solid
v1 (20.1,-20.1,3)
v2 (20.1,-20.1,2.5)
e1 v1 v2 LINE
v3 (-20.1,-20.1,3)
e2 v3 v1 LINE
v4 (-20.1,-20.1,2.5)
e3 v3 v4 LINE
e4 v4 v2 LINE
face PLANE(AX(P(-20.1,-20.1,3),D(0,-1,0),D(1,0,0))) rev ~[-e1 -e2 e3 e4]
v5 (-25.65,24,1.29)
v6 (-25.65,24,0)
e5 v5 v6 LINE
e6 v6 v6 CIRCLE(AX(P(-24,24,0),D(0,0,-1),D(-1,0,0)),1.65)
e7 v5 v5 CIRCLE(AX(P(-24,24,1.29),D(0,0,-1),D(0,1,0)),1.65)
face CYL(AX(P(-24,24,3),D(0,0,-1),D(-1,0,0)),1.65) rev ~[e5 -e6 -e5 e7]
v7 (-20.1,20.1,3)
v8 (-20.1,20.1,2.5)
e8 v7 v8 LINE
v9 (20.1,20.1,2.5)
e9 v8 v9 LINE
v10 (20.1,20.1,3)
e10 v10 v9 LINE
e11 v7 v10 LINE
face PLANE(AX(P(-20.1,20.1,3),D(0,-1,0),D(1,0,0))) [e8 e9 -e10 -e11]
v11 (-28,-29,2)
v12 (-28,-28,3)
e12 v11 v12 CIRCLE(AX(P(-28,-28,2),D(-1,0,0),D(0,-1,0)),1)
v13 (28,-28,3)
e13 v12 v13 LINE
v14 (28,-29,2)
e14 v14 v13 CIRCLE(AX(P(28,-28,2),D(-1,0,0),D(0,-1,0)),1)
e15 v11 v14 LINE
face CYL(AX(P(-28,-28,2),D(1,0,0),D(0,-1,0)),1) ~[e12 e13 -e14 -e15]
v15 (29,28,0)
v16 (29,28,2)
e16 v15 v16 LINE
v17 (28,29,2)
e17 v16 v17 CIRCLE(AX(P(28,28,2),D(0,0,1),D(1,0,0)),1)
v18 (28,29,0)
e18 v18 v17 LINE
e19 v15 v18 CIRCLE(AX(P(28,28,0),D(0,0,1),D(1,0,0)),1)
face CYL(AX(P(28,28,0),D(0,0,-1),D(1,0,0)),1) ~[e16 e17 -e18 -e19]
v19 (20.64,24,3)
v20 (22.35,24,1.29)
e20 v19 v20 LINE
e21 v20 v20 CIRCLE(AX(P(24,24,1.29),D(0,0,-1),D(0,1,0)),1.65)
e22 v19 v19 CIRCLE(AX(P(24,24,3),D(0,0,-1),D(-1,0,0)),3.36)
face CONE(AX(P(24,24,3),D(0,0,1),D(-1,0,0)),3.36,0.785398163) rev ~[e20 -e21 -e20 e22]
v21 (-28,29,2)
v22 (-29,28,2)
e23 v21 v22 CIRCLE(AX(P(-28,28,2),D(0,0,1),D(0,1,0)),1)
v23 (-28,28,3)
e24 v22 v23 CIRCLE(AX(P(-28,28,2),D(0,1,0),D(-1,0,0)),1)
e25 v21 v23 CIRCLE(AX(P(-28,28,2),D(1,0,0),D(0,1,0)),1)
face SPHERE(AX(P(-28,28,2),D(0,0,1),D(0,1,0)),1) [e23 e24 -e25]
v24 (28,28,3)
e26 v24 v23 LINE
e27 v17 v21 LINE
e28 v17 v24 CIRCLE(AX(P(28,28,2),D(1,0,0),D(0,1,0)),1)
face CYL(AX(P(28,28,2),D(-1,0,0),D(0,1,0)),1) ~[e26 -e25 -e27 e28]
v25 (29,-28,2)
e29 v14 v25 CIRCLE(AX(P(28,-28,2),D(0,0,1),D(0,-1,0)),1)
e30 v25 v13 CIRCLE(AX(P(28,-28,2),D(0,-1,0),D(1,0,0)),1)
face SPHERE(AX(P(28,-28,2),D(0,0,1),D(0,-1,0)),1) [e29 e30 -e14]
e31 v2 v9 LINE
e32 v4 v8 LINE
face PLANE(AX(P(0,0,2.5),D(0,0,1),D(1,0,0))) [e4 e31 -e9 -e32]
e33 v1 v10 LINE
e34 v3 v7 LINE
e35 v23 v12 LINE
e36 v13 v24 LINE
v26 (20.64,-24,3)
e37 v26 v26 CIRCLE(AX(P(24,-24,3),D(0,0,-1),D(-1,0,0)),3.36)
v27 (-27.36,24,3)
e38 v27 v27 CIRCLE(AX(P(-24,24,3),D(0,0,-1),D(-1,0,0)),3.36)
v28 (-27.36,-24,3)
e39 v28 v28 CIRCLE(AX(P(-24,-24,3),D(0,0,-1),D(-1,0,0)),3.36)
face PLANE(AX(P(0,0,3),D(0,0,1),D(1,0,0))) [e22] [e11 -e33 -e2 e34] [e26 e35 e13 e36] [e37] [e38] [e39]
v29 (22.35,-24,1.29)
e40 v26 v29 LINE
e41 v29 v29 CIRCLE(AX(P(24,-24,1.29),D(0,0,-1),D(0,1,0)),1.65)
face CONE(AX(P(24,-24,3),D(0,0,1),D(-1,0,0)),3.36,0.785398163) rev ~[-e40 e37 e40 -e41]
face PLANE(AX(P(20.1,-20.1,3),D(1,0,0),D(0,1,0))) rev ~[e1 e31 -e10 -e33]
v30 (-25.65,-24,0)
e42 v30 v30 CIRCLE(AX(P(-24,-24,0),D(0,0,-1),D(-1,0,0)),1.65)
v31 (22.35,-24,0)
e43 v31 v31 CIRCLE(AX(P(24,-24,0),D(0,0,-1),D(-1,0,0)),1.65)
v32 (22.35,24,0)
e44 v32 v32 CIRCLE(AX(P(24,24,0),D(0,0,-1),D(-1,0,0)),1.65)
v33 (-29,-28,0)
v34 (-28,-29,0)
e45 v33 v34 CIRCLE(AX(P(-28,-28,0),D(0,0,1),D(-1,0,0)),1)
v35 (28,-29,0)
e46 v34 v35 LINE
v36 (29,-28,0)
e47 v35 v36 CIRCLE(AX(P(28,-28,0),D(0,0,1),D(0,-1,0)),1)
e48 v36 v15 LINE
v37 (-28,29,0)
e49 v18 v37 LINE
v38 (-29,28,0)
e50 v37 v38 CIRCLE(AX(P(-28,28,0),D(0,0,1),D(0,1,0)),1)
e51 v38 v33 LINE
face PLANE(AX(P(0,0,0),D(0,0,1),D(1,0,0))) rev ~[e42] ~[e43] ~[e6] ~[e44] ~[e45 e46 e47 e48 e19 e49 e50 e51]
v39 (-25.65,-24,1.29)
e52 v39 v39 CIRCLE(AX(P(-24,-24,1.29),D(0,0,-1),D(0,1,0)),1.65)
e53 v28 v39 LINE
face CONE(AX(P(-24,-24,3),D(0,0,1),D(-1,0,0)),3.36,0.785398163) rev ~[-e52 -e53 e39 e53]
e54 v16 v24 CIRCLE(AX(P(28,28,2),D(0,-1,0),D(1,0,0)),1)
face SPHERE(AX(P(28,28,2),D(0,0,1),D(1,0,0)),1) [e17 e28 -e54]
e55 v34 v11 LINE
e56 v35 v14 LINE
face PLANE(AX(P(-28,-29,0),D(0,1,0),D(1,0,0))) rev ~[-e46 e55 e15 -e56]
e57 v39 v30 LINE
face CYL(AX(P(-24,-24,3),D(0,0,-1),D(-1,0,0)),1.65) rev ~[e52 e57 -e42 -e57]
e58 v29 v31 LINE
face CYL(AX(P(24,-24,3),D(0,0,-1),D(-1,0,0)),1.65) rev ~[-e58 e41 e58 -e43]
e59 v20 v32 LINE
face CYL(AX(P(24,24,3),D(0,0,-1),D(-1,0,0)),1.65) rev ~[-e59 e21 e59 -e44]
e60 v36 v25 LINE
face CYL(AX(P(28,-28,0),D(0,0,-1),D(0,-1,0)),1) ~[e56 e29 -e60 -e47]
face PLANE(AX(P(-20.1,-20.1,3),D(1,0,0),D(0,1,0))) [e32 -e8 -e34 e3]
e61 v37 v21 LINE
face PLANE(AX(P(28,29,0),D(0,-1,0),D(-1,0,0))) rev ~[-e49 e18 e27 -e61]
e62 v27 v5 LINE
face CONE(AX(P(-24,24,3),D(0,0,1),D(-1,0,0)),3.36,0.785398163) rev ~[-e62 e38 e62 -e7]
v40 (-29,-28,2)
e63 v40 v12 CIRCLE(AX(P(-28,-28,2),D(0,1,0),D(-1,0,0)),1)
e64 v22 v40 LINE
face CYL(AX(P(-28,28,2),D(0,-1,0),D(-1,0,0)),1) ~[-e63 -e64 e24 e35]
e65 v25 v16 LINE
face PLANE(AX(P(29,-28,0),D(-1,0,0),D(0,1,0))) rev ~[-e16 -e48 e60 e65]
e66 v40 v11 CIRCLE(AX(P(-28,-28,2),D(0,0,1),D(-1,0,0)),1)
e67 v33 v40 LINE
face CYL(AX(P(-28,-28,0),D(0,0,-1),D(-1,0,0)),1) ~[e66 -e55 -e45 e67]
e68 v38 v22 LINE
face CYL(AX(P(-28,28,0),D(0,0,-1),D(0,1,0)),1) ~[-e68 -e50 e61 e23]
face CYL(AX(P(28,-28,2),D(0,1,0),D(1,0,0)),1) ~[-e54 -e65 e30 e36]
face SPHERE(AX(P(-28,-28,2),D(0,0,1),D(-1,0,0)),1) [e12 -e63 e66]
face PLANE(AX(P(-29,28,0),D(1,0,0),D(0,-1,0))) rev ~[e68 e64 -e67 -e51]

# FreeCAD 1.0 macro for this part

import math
import FreeCAD as App
import Part
import Sketcher
from FreeCAD import Vector
Q = App.Units.Quantity


def edges_at(feature, points):
    """Names of the edges that pass closest to the given points."""
    edges = feature.Shape.Edges
    near = lambda p: min(range(len(edges)), key=lambda i: edges[i].distToShape(Part.Vertex(*p))[0])
    return sorted({f"Edge{near(p) + 1}" for p in points})

doc = App.newDocument("Part")
body = doc.addObject("PartDesign::Body", "Body")

sketch1 = doc.addObject("Sketcher::SketchObject", "Sketch")
body.addObject(sketch1)
sketch1.AttachmentSupport = (doc.XY_Plane, [""])
sketch1.MapMode = "FlatFace"
sketch1.addGeometry([
    Part.LineSegment(Vector(-28, -29, 0), Vector(28, -29, 0)),
    Part.ArcOfCircle(Part.Circle(Vector(28, -28, 0), Vector(0, 0, 1), 1), math.radians(-90), math.radians(0)),
    Part.LineSegment(Vector(29, -28, 0), Vector(29, 28, 0)),
    Part.ArcOfCircle(Part.Circle(Vector(28, 28, 0), Vector(0, 0, 1), 1), math.radians(0), math.radians(90)),
    Part.LineSegment(Vector(28, 29, 0), Vector(-28, 29, 0)),
    Part.ArcOfCircle(Part.Circle(Vector(-28, 28, 0), Vector(0, 0, 1), 1), math.radians(90), math.radians(180)),
    Part.LineSegment(Vector(-29, 28, 0), Vector(-29, -28, 0)),
    Part.ArcOfCircle(Part.Circle(Vector(-28, -28, 0), Vector(0, 0, 1), 1), math.radians(180), math.radians(270)),
], False)
sketch1.addConstraint([
    Sketcher.Constraint("Tangent", 0, 2, 1, 1),
    Sketcher.Constraint("Tangent", 1, 2, 2, 1),
    Sketcher.Constraint("Tangent", 2, 2, 3, 1),
    Sketcher.Constraint("Tangent", 3, 2, 4, 1),
    Sketcher.Constraint("Tangent", 4, 2, 5, 1),
    Sketcher.Constraint("Tangent", 5, 2, 6, 1),
    Sketcher.Constraint("Tangent", 6, 2, 7, 1),
    Sketcher.Constraint("Tangent", 7, 2, 0, 1),
    Sketcher.Constraint("Horizontal", 0),
    Sketcher.Constraint("Vertical", 2),
    Sketcher.Constraint("Horizontal", 4),
    Sketcher.Constraint("Vertical", 6),
    Sketcher.Constraint("Equal", 1, 3),
    Sketcher.Constraint("Equal", 3, 5),
    Sketcher.Constraint("Equal", 5, 7),
    Sketcher.Constraint("Symmetric", 1, 3, 5, 3, -1, 1),
    Sketcher.Constraint("Equal", 4, 2),
    Sketcher.Constraint("Radius", 1, Q("1 mm")),
    Sketcher.Constraint("DistanceX", 0, 1, 0, 2, Q("56 mm")),
])
pad1 = doc.addObject("PartDesign::Pad", "Pad")
body.addObject(pad1)
pad1.Profile = sketch1
pad1.Length = 3
doc.recompute()

fillet = doc.addObject("PartDesign::Fillet", "Fillet")
body.addObject(fillet)
fillet.Base = (pad1, edges_at(pad1, [(29, 0, 3)]))
fillet.Radius = 1

sketch2 = doc.addObject("Sketcher::SketchObject", "Sketch001")
body.addObject(sketch2)
sketch2.AttachmentSupport = (doc.XY_Plane, [""])
sketch2.MapMode = "FlatFace"
sketch2.AttachmentOffset = App.Placement(Vector(0, 0, 3), App.Rotation())
sketch2.addGeometry([
    Part.Circle(Vector(-24, 24, 0), Vector(0, 0, 1), 1.6),
    Part.Circle(Vector(24, 24, 0), Vector(0, 0, 1), 1.6),
    Part.Circle(Vector(-24, -24, 0), Vector(0, 0, 1), 1.6),
    Part.Circle(Vector(24, -24, 0), Vector(0, 0, 1), 1.6),
], False)
sketch2.addConstraint([
    Sketcher.Constraint("Equal", 0, 1),
    Sketcher.Constraint("Equal", 1, 2),
    Sketcher.Constraint("Equal", 2, 3),
    Sketcher.Constraint("Symmetric", 1, 3, 2, 3, -1, 1),
    Sketcher.Constraint("Symmetric", 0, 3, 3, 3, -1, 1),
    Sketcher.Constraint("Symmetric", 0, 3, 1, 3, -2),
    Sketcher.Constraint("Diameter", 0, Q("3.3 mm")),
    Sketcher.Constraint("DistanceX", 0, 3, -1, 1, Q("24 mm")),
    Sketcher.Constraint("DistanceY", -1, 1, 0, 3, Q("24 mm")),
])
doc.recompute()
hole = doc.addObject("PartDesign::Hole", "Hole")
body.addObject(hole)
hole.Profile = sketch2
hole.ThreadType = "None"
hole.Diameter = 3.3
hole.DepthType = "ThroughAll"
hole.HoleCutType = "Countersink"
hole.HoleCutDiameter = 6.72
hole.HoleCutCountersinkAngle = 90

sketch3 = doc.addObject("Sketcher::SketchObject", "Sketch002")
body.addObject(sketch3)
sketch3.AttachmentSupport = (doc.XY_Plane, [""])
sketch3.MapMode = "FlatFace"
sketch3.AttachmentOffset = App.Placement(Vector(0, 0, 3), App.Rotation())
sketch3.addGeometry([
    Part.LineSegment(Vector(-20, 20, 0), Vector(-20, -20, 0)),
    Part.LineSegment(Vector(-20, -20, 0), Vector(20, -20, 0)),
    Part.LineSegment(Vector(20, -20, 0), Vector(20, 20, 0)),
    Part.LineSegment(Vector(20, 20, 0), Vector(-20, 20, 0)),
], False)
sketch3.addConstraint([
    Sketcher.Constraint("Coincident", 0, 2, 1, 1),
    Sketcher.Constraint("Coincident", 1, 2, 2, 1),
    Sketcher.Constraint("Coincident", 2, 2, 3, 1),
    Sketcher.Constraint("Coincident", 3, 2, 0, 1),
    Sketcher.Constraint("Vertical", 0),
    Sketcher.Constraint("Horizontal", 1),
    Sketcher.Constraint("Vertical", 2),
    Sketcher.Constraint("Horizontal", 3),
    Sketcher.Constraint("Symmetric", 0, 2, 2, 2, -1, 1),
    Sketcher.Constraint("Equal", 3, 0),
    Sketcher.Constraint("DistanceX", 1, 1, 1, 2, Q("40.2 mm")),
])
pocket1 = doc.addObject("PartDesign::Pocket", "Pocket")
body.addObject(pocket1)
pocket1.Profile = sketch3
pocket1.Length = 0.5

doc.recompute()
